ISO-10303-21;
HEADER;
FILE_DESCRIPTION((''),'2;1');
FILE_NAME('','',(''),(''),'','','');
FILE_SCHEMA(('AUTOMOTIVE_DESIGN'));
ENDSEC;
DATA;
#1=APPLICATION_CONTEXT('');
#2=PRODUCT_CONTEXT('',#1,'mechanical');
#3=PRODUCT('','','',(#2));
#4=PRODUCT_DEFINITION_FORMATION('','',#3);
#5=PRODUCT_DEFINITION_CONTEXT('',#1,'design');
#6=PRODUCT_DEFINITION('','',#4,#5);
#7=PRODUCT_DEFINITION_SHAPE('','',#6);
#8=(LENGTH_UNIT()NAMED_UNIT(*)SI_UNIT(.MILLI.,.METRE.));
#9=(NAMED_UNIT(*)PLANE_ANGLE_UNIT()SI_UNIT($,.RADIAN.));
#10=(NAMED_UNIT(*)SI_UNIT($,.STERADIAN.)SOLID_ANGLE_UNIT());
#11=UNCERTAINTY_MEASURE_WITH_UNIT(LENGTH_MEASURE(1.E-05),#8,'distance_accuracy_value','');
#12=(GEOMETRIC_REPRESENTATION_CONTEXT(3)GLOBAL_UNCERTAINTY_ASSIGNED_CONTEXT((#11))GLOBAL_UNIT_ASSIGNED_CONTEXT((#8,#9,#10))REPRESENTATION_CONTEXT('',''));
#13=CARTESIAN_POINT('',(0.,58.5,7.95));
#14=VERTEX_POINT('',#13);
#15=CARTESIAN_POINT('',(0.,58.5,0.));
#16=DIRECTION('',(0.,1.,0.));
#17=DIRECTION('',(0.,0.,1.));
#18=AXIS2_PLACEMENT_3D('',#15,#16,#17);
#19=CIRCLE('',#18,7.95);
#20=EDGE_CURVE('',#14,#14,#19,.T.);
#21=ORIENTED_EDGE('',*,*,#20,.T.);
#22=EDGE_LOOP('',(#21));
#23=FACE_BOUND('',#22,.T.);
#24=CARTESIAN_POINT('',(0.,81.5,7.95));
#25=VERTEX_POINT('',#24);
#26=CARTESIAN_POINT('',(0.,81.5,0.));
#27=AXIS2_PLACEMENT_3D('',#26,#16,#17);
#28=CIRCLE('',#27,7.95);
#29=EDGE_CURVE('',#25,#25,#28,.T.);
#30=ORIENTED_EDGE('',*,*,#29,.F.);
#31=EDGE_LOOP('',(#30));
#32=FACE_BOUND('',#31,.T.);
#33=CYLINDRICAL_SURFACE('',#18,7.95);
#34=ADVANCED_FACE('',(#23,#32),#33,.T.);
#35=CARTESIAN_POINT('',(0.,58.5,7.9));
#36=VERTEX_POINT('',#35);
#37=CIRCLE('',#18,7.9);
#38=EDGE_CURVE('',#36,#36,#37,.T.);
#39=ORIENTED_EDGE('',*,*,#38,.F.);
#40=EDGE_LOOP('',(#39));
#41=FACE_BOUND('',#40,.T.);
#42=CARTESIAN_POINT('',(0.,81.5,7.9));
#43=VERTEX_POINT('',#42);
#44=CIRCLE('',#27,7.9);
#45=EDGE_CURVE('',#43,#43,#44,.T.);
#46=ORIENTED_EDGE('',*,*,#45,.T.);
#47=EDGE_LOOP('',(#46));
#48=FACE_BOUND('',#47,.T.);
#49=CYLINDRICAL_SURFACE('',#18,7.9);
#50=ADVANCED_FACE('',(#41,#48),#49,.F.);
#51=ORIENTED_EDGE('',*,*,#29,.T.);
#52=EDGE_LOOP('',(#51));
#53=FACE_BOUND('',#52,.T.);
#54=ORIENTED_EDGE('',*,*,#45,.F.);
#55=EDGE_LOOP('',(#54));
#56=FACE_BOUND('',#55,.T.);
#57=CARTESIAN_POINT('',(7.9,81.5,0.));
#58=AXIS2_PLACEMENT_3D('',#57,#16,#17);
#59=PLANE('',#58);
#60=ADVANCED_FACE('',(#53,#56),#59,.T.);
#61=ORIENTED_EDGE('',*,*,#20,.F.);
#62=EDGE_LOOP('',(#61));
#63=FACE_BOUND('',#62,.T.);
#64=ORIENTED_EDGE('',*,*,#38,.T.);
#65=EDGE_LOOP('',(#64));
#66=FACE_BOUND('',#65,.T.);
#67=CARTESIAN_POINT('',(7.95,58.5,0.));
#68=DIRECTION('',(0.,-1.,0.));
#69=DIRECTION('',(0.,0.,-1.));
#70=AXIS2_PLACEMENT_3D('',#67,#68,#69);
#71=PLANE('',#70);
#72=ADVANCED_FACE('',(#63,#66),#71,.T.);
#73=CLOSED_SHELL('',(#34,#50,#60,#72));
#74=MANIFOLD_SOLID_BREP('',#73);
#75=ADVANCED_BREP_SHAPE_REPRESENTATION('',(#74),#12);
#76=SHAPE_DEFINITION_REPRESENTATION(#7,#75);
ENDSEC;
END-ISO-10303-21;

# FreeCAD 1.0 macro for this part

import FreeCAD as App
import Part
import Sketcher

V = App.Vector

doc = App.newDocument("Part")
body = doc.addObject("PartDesign::Body", "Body")

sketch1 = doc.addObject("Sketcher::SketchObject", "Sketch")
body.addObject(sketch1)
sketch1.AttachmentSupport = (doc.XY_Plane, [""])
sketch1.MapMode = "FlatFace"
sketch1.addGeometry([
    Part.LineSegment(V(7.95, 81.5, 0), V(7.95, 58.5, 0)),
    Part.LineSegment(V(7.95, 58.5, 0), V(7.9, 58.5, 0)),
    Part.LineSegment(V(7.9, 58.5, 0), V(7.9, 81.5, 0)),
    Part.LineSegment(V(7.9, 81.5, 0), V(7.95, 81.5, 0)),
], False)
sketch1.addConstraint([
    Sketcher.Constraint("Coincident", 0, 2, 1, 1),
    Sketcher.Constraint("Coincident", 1, 2, 2, 1),
    Sketcher.Constraint("Coincident", 2, 2, 3, 1),
    Sketcher.Constraint("Coincident", 3, 2, 0, 1),
    Sketcher.Constraint("Vertical", 0),
    Sketcher.Constraint("Horizontal", 1),
    Sketcher.Constraint("Vertical", 2),
    Sketcher.Constraint("Horizontal", 3),
    Sketcher.Constraint("DistanceY", 0, 2, 0, 1, 23.0),
    Sketcher.Constraint("DistanceX", 1, 2, 1, 1, 0.05),
    Sketcher.Constraint("DistanceY", -1, 1, 0, 2, 58.5),
    Sketcher.Constraint("DistanceX", -1, 1, 1, 2, 7.9),
])
revolution = doc.addObject("PartDesign::Revolution", "Revolution")
body.addObject(revolution)
revolution.Profile = sketch1
revolution.ReferenceAxis = (sketch1, ["V_Axis"])
revolution.Angle = 360

doc.recompute()
